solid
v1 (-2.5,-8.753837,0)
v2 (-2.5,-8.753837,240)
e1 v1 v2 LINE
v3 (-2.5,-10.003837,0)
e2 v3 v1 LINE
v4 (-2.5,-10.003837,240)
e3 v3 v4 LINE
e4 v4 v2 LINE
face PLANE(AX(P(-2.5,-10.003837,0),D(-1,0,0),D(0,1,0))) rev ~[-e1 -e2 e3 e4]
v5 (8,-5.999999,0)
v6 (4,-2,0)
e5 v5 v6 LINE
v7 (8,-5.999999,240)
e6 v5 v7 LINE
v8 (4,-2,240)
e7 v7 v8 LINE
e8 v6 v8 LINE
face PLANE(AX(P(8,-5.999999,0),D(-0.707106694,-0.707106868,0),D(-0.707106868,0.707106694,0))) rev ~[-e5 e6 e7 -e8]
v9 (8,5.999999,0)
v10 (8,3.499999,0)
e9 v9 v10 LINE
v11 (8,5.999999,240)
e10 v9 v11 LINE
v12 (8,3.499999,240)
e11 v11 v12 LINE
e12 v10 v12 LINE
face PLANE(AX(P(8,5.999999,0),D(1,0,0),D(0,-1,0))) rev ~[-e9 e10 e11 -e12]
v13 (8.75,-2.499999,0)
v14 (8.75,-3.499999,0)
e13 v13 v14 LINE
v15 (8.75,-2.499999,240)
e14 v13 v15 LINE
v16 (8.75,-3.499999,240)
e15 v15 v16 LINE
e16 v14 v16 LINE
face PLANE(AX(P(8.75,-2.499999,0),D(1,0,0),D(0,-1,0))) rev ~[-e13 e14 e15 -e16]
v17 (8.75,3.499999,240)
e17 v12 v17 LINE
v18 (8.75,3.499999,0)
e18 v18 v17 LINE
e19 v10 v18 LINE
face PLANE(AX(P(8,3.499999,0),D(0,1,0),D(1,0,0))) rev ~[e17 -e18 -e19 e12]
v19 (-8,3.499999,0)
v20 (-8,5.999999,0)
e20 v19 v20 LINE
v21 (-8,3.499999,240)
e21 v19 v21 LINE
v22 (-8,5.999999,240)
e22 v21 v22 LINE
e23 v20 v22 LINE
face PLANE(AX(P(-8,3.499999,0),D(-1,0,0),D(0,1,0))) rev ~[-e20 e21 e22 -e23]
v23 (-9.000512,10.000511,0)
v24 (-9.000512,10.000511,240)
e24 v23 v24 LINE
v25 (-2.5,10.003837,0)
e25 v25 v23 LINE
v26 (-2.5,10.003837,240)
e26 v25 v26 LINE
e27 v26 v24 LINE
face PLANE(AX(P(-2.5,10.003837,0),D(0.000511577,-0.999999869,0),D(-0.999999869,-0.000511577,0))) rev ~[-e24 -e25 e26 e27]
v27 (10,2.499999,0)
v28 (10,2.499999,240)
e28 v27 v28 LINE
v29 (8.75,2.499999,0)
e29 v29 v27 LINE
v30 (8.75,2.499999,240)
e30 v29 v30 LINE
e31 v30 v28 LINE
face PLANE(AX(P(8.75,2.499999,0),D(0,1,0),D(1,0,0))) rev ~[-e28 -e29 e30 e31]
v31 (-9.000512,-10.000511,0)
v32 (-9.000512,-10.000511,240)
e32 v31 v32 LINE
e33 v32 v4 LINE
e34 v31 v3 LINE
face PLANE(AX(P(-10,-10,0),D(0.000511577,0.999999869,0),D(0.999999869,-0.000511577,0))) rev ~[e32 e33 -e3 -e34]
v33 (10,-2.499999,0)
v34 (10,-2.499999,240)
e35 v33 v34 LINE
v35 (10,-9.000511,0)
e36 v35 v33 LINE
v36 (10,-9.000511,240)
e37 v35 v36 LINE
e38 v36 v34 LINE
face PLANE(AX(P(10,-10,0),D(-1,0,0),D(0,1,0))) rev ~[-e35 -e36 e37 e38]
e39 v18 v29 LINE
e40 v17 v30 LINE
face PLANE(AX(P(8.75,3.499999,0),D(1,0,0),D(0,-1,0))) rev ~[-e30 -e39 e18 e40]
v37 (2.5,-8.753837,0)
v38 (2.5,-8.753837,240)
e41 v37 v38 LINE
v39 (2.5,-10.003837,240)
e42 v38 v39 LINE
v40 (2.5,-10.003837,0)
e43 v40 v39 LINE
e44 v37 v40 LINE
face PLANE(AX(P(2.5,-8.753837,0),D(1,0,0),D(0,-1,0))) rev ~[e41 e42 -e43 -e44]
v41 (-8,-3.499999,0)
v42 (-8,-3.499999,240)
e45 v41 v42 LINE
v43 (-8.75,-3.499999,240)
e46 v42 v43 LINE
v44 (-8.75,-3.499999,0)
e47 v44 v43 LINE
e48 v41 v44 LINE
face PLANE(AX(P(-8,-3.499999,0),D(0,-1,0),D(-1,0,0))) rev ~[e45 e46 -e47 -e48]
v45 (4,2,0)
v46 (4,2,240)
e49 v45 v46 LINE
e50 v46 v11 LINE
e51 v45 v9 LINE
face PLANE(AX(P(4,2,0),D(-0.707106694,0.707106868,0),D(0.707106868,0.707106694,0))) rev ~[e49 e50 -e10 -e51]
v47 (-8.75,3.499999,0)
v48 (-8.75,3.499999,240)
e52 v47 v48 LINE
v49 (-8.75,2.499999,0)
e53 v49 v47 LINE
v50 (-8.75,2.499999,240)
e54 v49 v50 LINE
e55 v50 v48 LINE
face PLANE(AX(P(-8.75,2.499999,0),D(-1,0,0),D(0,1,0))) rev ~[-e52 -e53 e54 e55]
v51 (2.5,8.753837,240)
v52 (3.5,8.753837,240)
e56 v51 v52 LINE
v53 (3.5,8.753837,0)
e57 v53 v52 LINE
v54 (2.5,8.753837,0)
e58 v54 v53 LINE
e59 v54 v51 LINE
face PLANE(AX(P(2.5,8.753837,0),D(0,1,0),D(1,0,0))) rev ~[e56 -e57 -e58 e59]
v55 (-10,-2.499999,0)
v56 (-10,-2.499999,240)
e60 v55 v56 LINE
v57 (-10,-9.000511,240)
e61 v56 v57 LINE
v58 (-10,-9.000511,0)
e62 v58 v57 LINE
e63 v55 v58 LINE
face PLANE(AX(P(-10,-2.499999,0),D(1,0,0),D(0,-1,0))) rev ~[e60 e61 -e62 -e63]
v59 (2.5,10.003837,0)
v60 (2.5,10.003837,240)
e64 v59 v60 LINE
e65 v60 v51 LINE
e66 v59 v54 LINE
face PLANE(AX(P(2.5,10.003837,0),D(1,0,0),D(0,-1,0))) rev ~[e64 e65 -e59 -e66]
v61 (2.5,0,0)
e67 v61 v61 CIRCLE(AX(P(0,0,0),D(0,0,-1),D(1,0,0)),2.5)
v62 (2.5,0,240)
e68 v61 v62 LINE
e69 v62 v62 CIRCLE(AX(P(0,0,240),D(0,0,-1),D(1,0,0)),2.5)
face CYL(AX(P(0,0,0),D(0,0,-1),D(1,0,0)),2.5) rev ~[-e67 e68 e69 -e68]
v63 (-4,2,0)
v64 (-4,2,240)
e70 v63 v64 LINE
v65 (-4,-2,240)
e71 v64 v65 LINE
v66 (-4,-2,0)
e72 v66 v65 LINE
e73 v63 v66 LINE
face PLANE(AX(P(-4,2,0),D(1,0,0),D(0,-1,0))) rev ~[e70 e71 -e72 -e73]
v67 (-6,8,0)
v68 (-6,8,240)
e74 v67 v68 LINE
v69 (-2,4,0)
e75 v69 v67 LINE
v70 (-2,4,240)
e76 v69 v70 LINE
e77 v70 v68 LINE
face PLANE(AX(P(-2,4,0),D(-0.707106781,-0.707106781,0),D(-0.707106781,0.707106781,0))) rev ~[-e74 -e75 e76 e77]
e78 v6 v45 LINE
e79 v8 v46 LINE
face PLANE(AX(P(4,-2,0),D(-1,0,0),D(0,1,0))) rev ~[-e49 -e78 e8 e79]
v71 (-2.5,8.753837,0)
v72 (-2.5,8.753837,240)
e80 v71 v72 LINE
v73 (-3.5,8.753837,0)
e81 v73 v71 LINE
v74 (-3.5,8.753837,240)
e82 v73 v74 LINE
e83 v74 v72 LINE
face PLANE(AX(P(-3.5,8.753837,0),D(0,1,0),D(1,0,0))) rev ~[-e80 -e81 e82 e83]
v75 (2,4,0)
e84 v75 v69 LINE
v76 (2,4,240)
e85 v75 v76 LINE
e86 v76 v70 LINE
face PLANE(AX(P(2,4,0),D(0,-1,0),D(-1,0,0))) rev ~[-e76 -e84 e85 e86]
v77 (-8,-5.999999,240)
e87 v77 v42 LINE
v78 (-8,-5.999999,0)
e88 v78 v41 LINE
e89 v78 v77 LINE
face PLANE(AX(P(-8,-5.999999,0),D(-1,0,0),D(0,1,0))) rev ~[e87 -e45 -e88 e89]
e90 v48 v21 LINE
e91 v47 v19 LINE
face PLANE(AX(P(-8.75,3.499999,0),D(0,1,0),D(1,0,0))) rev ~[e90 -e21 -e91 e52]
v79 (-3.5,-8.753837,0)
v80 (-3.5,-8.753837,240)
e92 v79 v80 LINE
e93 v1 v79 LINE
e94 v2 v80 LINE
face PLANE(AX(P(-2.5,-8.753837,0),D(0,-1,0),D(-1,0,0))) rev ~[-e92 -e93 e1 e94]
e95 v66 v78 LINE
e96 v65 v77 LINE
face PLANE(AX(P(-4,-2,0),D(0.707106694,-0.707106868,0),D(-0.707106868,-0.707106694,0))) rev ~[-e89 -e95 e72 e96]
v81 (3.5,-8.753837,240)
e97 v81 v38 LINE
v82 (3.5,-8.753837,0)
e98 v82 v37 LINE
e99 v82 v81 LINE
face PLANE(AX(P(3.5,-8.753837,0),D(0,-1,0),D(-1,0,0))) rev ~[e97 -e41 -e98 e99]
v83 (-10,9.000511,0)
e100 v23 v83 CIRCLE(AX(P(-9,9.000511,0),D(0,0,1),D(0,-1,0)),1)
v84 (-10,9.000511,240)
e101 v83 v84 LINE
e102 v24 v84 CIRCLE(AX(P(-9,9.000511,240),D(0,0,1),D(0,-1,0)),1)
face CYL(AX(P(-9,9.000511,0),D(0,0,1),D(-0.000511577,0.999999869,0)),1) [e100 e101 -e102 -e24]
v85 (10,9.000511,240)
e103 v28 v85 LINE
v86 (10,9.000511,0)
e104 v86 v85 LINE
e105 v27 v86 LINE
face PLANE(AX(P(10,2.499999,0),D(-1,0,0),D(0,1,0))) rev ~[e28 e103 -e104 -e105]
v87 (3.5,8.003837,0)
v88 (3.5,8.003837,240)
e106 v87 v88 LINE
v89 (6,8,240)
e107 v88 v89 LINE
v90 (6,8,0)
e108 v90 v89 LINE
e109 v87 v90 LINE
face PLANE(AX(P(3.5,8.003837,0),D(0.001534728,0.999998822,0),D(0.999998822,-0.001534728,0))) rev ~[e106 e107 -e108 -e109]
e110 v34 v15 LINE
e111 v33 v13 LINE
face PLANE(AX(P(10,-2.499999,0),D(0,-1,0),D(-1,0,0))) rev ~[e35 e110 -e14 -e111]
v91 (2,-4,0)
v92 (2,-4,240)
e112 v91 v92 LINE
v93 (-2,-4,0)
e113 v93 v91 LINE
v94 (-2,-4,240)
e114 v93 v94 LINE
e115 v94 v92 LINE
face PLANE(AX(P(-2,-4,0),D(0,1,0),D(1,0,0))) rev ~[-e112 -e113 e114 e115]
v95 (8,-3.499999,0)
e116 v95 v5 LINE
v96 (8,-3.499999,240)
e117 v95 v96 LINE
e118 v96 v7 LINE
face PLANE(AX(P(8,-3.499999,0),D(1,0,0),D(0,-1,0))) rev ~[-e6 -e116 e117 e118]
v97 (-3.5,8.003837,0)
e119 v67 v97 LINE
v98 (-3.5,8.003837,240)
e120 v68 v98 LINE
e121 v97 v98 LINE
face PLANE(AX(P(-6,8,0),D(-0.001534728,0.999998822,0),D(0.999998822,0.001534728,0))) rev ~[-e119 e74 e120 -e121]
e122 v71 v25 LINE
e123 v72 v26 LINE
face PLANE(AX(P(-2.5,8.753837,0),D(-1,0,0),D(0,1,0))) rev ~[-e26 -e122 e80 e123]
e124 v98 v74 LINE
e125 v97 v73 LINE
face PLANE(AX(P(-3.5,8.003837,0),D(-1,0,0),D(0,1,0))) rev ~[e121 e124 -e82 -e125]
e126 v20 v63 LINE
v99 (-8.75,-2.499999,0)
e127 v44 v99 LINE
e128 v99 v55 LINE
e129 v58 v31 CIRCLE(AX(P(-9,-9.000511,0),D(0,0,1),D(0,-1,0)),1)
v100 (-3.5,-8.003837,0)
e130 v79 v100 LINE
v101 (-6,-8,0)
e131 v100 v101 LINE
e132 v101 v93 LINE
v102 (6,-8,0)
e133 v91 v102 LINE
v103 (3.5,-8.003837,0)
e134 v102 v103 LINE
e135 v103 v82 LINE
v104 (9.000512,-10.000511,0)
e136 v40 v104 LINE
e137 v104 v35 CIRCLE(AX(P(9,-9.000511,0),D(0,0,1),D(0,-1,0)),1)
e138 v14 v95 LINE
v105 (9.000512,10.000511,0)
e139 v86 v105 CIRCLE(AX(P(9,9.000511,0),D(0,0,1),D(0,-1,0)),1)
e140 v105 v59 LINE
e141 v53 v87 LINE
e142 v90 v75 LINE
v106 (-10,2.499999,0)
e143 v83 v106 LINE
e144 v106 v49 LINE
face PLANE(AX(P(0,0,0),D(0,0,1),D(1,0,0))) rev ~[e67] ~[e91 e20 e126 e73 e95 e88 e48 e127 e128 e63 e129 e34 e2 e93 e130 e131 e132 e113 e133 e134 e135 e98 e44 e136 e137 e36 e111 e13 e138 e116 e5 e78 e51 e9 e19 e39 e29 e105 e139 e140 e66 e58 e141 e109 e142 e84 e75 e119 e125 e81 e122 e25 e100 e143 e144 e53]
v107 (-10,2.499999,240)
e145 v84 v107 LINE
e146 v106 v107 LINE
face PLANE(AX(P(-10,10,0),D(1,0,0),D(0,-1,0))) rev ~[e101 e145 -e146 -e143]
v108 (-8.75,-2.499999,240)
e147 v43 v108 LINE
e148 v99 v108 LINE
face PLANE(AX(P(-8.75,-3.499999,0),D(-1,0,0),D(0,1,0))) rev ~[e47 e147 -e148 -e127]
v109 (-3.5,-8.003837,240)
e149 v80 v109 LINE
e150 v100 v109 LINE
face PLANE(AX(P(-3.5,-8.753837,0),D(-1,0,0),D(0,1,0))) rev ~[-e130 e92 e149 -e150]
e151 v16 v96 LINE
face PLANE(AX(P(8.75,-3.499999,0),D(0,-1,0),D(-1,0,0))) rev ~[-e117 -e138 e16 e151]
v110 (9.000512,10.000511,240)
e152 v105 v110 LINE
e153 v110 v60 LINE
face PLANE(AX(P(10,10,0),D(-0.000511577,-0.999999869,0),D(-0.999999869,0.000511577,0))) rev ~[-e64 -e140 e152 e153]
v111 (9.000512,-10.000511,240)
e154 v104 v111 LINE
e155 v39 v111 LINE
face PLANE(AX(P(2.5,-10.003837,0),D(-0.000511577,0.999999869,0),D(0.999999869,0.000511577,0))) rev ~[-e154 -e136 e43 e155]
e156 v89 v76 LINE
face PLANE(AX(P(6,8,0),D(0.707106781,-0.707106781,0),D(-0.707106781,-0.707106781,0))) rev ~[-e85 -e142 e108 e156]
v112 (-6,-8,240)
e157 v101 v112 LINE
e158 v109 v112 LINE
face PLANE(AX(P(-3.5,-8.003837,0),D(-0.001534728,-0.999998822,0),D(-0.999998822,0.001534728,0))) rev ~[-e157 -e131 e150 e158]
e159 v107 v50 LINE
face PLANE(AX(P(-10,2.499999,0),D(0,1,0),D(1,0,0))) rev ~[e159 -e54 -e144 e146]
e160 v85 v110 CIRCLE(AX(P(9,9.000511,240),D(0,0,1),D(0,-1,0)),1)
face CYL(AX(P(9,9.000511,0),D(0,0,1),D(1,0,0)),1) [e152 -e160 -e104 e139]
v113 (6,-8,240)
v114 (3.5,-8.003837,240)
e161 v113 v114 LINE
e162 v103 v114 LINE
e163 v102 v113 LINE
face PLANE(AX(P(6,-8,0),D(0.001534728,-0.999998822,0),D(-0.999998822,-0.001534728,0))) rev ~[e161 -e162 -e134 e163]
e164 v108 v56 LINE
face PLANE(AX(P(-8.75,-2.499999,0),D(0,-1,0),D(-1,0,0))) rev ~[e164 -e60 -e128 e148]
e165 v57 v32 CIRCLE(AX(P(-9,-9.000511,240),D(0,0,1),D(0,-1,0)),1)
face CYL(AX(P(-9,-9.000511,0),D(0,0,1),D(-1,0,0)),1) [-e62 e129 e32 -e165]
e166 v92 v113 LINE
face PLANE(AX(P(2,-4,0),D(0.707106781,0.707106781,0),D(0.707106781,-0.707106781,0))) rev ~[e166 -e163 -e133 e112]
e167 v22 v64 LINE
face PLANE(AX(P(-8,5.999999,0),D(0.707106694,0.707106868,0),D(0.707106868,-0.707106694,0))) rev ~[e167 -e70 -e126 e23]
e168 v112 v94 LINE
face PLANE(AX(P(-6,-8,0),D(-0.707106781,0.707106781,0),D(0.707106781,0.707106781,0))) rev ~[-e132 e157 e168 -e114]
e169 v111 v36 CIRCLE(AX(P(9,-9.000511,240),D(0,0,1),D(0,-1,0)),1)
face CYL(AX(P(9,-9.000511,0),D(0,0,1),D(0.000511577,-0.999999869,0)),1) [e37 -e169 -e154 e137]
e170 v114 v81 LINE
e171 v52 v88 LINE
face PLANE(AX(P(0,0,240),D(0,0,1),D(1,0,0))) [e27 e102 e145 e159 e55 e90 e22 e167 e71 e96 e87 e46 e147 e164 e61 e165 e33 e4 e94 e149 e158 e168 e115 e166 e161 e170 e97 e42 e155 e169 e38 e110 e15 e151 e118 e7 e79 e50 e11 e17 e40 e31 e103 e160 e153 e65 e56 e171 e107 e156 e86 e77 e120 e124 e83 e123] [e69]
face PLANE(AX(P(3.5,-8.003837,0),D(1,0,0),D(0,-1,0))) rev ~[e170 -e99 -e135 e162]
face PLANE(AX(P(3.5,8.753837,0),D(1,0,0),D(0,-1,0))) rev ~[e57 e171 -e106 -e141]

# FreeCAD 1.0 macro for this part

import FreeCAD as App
import Part
import Sketcher

V = App.Vector
Q = App.Units.Quantity


def edges_at(feature, points):
    """Names of the edges that pass closest to the given points."""
    edges = feature.Shape.Edges
    near = lambda p: min(range(len(edges)), key=lambda i: edges[i].distToShape(Part.Vertex(*p))[0])
    return sorted({f"Edge{near(p) + 1}" for p in points})


def add_polygon(sketch, points):
    """Adds a closed chain of lines whose ends are joined by coincident constraints."""
    first, n = sketch.GeometryCount, len(points)
    for a, b in zip(points, points[1:] + points[:1]):
        sketch.addGeometry(Part.LineSegment(App.Vector(*a, 0), App.Vector(*b, 0)), False)
    for i in range(n):
        sketch.addConstraint(Sketcher.Constraint("Coincident", first + i, 2, first + (i + 1) % n, 1))

doc = App.newDocument("Part")
body = doc.addObject("PartDesign::Body", "Body")

# Sketch on XY plane
sketch1 = body.newObject("Sketcher::SketchObject", "Sketch")
sketch1.AttachmentSupport = (doc.getObject("XY_Plane"), [""])
sketch1.MapMode = "FlatFace"
add_polygon(sketch1, [(-2, 4), (-6, 8), (-3.5, 8), (-3.5, 8.8), (-2.5, 8.8), (-2.5, 10), (-10, 10), (-10, 2.5), (-8.8, 2.5), (-8.8, 3.5), (-8, 3.5), (-8, 6), (-4, 2), (-4, -2), (-8, -6), (-8, -3.5), (-8.8, -3.5), (-8.8, -2.5), (-10, -2.5), (-10, -10), (-2.5, -10), (-2.5, -8.8), (-3.5, -8.8), (-3.5, -8), (-6, -8), (-2, -4), (2, -4), (6, -8), (3.5, -8), (3.5, -8.8), (2.5, -8.8), (2.5, -10), (10, -10), (10, -2.5), (8.8, -2.5), (8.8, -3.5), (8, -3.5), (8, -6), (4, -2), (4, 2), (8, 6), (8, 3.5), (8.8, 3.5), (8.8, 2.5), (10, 2.5), (10, 10), (2.5, 10), (2.5, 8.8), (3.5, 8.8), (3.5, 8), (6, 8), (2, 4)])  # lines 0-51
sketch1.addConstraint([
    Sketcher.Constraint("Vertical", 2),
    Sketcher.Constraint("Horizontal", 3),
    Sketcher.Constraint("Vertical", 4),
    Sketcher.Constraint("Vertical", 6),
    Sketcher.Constraint("Horizontal", 7),
    Sketcher.Constraint("Vertical", 8),
    Sketcher.Constraint("Horizontal", 9),
    Sketcher.Constraint("Vertical", 10),
    Sketcher.Constraint("Vertical", 12),
    Sketcher.Constraint("Vertical", 14),
    Sketcher.Constraint("Horizontal", 15),
    Sketcher.Constraint("Vertical", 16),
    Sketcher.Constraint("Horizontal", 17),
    Sketcher.Constraint("Vertical", 18),
    Sketcher.Constraint("Vertical", 20),
    Sketcher.Constraint("Horizontal", 21),
    Sketcher.Constraint("Vertical", 22),
    Sketcher.Constraint("Horizontal", 25),
    Sketcher.Constraint("Vertical", 28),
    Sketcher.Constraint("Horizontal", 29),
    Sketcher.Constraint("Vertical", 30),
    Sketcher.Constraint("Vertical", 32),
    Sketcher.Constraint("Horizontal", 33),
    Sketcher.Constraint("Vertical", 34),
    Sketcher.Constraint("Horizontal", 35),
    Sketcher.Constraint("Vertical", 36),
    Sketcher.Constraint("Vertical", 38),
    Sketcher.Constraint("Vertical", 40),
    Sketcher.Constraint("Horizontal", 41),
    Sketcher.Constraint("Vertical", 42),
    Sketcher.Constraint("Horizontal", 43),
    Sketcher.Constraint("Vertical", 44),
    Sketcher.Constraint("Vertical", 46),
    Sketcher.Constraint("Horizontal", 47),
    Sketcher.Constraint("Vertical", 48),
    Sketcher.Constraint("Horizontal", 51),
    Sketcher.Constraint("Symmetric", 0, 2, 26, 2, -1, 1),
    Sketcher.Constraint("Symmetric", 1, 2, 27, 2, -1, 1),
    Sketcher.Constraint("Symmetric", 3, 2, 29, 2, -1, 1),
    Sketcher.Constraint("Symmetric", 5, 2, 31, 2, -1, 1),
    Sketcher.Constraint("Symmetric", 7, 2, 33, 2, -1, 1),
    Sketcher.Constraint("Symmetric", 9, 2, 35, 2, -1, 1),
    Sketcher.Constraint("Symmetric", 11, 2, 37, 2, -1, 1),
    Sketcher.Constraint("Symmetric", 13, 2, 39, 2, -1, 1),
    Sketcher.Constraint("Symmetric", 15, 2, 41, 2, -1, 1),
    Sketcher.Constraint("Symmetric", 17, 2, 43, 2, -1, 1),
    Sketcher.Constraint("Symmetric", 19, 2, 45, 2, -1, 1),
    Sketcher.Constraint("Symmetric", 21, 2, 47, 2, -1, 1),
    Sketcher.Constraint("Symmetric", 23, 2, 49, 2, -1, 1),
    Sketcher.Constraint("Symmetric", 24, 2, 50, 2, -1, 1),
    Sketcher.Constraint("Symmetric", 23, 2, 26, 2, -2),
    Sketcher.Constraint("Symmetric", 22, 2, 27, 2, -2),
    Sketcher.Constraint("Symmetric", 20, 2, 29, 2, -2),
    Sketcher.Constraint("Symmetric", 18, 2, 31, 2, -2),
    Sketcher.Constraint("Symmetric", 16, 2, 33, 2, -2),
    Sketcher.Constraint("Symmetric", 14, 2, 35, 2, -2),
    Sketcher.Constraint("Parallel", 0, 11),
    Sketcher.Constraint("Perpendicular", 11, 13),
    Sketcher.Constraint("Parallel", 13, 24),
    Sketcher.Constraint("Perpendicular", 24, 26),
    Sketcher.Constraint("Parallel", 5, 31),
    Sketcher.Constraint("Parallel", 26, 37),
    Sketcher.Constraint("Perpendicular", 37, 39),
    Sketcher.Constraint("Parallel", 19, 45),
    Sketcher.Constraint("Parallel", 23, 49),
    Sketcher.Constraint("Horizontal", 19, 2, 30, 2),
    Sketcher.Constraint("Horizontal", 13, 2, 36, 2),
    Sketcher.Constraint("Horizontal", 12, 2, 37, 2),
    Sketcher.Constraint("Equal", 41, 2),
    Sketcher.Constraint("Equal", 43, 4),
    Sketcher.Constraint("Equal", 47, 8),
    Sketcher.Constraint("Equal", 51, 12),
    Sketcher.Constraint("Equal", 0, 11),
    Sketcher.Constraint("DistanceX", 3, 1, 3, 2, Q("1 mm")),
    Sketcher.Constraint("DistanceX", 25, 1, 25, 2, Q("4 mm")),
    Sketcher.Constraint("DistanceY", 6, 2, 6, 1, Q("7.500001 mm")),
    Sketcher.Constraint("DistanceY", 10, 1, 10, 2, Q("2.5 mm")),
    Sketcher.Constraint("DistanceX", 0, 2, -1, 1, Q("6 mm")),
    Sketcher.Constraint("DistanceY", -1, 1, 0, 2, Q("8 mm")),
    Sketcher.Constraint("DistanceX", 5, 2, -1, 1, Q("10 mm")),
    Sketcher.Constraint("DistanceX", 9, 2, -1, 1, Q("8 mm")),
    Sketcher.Constraint("DistanceX", 20, 2, 27, 2, Q("6 mm")),
    Sketcher.Constraint("DistanceX", 7, 1, 7, 2, Q("1.25 mm")),
    Sketcher.Constraint("DistanceY", -1, 1, 1, 2, Q("8.003837 mm")),
])
pad1 = body.newObject("PartDesign::Pad", "Pad")
pad1.Profile = sketch1
pad1.Length = 240
doc.recompute()

fillet = body.newObject("PartDesign::Fillet", "Fillet")
fillet.Base = (pad1, edges_at(pad1, [
    (-10, -10, 120),
    (10, -10, 120),
    (-10, 10, 120),
    (10, 10, 120),
]))
fillet.Radius = 1

# Sketch on XY plane
sketch2 = body.newObject("Sketcher::SketchObject", "Sketch001")
sketch2.AttachmentSupport = (doc.getObject("XY_Plane"), [""])
sketch2.MapMode = "FlatFace"
sketch2.addGeometry(Part.Circle(V(0, 0, 0), V(0, 0, 1), 2.5), False)
sketch2.addConstraint([
    Sketcher.Constraint("Coincident", 0, 3, -1, 1),
    Sketcher.Constraint("Diameter", 0, Q("5 mm")),
])
pocket1 = body.newObject("PartDesign::Pocket", "Pocket")
pocket1.Profile = sketch2
pocket1.Type = "ThroughAll"
pocket1.Reversed = True

doc.recompute()
